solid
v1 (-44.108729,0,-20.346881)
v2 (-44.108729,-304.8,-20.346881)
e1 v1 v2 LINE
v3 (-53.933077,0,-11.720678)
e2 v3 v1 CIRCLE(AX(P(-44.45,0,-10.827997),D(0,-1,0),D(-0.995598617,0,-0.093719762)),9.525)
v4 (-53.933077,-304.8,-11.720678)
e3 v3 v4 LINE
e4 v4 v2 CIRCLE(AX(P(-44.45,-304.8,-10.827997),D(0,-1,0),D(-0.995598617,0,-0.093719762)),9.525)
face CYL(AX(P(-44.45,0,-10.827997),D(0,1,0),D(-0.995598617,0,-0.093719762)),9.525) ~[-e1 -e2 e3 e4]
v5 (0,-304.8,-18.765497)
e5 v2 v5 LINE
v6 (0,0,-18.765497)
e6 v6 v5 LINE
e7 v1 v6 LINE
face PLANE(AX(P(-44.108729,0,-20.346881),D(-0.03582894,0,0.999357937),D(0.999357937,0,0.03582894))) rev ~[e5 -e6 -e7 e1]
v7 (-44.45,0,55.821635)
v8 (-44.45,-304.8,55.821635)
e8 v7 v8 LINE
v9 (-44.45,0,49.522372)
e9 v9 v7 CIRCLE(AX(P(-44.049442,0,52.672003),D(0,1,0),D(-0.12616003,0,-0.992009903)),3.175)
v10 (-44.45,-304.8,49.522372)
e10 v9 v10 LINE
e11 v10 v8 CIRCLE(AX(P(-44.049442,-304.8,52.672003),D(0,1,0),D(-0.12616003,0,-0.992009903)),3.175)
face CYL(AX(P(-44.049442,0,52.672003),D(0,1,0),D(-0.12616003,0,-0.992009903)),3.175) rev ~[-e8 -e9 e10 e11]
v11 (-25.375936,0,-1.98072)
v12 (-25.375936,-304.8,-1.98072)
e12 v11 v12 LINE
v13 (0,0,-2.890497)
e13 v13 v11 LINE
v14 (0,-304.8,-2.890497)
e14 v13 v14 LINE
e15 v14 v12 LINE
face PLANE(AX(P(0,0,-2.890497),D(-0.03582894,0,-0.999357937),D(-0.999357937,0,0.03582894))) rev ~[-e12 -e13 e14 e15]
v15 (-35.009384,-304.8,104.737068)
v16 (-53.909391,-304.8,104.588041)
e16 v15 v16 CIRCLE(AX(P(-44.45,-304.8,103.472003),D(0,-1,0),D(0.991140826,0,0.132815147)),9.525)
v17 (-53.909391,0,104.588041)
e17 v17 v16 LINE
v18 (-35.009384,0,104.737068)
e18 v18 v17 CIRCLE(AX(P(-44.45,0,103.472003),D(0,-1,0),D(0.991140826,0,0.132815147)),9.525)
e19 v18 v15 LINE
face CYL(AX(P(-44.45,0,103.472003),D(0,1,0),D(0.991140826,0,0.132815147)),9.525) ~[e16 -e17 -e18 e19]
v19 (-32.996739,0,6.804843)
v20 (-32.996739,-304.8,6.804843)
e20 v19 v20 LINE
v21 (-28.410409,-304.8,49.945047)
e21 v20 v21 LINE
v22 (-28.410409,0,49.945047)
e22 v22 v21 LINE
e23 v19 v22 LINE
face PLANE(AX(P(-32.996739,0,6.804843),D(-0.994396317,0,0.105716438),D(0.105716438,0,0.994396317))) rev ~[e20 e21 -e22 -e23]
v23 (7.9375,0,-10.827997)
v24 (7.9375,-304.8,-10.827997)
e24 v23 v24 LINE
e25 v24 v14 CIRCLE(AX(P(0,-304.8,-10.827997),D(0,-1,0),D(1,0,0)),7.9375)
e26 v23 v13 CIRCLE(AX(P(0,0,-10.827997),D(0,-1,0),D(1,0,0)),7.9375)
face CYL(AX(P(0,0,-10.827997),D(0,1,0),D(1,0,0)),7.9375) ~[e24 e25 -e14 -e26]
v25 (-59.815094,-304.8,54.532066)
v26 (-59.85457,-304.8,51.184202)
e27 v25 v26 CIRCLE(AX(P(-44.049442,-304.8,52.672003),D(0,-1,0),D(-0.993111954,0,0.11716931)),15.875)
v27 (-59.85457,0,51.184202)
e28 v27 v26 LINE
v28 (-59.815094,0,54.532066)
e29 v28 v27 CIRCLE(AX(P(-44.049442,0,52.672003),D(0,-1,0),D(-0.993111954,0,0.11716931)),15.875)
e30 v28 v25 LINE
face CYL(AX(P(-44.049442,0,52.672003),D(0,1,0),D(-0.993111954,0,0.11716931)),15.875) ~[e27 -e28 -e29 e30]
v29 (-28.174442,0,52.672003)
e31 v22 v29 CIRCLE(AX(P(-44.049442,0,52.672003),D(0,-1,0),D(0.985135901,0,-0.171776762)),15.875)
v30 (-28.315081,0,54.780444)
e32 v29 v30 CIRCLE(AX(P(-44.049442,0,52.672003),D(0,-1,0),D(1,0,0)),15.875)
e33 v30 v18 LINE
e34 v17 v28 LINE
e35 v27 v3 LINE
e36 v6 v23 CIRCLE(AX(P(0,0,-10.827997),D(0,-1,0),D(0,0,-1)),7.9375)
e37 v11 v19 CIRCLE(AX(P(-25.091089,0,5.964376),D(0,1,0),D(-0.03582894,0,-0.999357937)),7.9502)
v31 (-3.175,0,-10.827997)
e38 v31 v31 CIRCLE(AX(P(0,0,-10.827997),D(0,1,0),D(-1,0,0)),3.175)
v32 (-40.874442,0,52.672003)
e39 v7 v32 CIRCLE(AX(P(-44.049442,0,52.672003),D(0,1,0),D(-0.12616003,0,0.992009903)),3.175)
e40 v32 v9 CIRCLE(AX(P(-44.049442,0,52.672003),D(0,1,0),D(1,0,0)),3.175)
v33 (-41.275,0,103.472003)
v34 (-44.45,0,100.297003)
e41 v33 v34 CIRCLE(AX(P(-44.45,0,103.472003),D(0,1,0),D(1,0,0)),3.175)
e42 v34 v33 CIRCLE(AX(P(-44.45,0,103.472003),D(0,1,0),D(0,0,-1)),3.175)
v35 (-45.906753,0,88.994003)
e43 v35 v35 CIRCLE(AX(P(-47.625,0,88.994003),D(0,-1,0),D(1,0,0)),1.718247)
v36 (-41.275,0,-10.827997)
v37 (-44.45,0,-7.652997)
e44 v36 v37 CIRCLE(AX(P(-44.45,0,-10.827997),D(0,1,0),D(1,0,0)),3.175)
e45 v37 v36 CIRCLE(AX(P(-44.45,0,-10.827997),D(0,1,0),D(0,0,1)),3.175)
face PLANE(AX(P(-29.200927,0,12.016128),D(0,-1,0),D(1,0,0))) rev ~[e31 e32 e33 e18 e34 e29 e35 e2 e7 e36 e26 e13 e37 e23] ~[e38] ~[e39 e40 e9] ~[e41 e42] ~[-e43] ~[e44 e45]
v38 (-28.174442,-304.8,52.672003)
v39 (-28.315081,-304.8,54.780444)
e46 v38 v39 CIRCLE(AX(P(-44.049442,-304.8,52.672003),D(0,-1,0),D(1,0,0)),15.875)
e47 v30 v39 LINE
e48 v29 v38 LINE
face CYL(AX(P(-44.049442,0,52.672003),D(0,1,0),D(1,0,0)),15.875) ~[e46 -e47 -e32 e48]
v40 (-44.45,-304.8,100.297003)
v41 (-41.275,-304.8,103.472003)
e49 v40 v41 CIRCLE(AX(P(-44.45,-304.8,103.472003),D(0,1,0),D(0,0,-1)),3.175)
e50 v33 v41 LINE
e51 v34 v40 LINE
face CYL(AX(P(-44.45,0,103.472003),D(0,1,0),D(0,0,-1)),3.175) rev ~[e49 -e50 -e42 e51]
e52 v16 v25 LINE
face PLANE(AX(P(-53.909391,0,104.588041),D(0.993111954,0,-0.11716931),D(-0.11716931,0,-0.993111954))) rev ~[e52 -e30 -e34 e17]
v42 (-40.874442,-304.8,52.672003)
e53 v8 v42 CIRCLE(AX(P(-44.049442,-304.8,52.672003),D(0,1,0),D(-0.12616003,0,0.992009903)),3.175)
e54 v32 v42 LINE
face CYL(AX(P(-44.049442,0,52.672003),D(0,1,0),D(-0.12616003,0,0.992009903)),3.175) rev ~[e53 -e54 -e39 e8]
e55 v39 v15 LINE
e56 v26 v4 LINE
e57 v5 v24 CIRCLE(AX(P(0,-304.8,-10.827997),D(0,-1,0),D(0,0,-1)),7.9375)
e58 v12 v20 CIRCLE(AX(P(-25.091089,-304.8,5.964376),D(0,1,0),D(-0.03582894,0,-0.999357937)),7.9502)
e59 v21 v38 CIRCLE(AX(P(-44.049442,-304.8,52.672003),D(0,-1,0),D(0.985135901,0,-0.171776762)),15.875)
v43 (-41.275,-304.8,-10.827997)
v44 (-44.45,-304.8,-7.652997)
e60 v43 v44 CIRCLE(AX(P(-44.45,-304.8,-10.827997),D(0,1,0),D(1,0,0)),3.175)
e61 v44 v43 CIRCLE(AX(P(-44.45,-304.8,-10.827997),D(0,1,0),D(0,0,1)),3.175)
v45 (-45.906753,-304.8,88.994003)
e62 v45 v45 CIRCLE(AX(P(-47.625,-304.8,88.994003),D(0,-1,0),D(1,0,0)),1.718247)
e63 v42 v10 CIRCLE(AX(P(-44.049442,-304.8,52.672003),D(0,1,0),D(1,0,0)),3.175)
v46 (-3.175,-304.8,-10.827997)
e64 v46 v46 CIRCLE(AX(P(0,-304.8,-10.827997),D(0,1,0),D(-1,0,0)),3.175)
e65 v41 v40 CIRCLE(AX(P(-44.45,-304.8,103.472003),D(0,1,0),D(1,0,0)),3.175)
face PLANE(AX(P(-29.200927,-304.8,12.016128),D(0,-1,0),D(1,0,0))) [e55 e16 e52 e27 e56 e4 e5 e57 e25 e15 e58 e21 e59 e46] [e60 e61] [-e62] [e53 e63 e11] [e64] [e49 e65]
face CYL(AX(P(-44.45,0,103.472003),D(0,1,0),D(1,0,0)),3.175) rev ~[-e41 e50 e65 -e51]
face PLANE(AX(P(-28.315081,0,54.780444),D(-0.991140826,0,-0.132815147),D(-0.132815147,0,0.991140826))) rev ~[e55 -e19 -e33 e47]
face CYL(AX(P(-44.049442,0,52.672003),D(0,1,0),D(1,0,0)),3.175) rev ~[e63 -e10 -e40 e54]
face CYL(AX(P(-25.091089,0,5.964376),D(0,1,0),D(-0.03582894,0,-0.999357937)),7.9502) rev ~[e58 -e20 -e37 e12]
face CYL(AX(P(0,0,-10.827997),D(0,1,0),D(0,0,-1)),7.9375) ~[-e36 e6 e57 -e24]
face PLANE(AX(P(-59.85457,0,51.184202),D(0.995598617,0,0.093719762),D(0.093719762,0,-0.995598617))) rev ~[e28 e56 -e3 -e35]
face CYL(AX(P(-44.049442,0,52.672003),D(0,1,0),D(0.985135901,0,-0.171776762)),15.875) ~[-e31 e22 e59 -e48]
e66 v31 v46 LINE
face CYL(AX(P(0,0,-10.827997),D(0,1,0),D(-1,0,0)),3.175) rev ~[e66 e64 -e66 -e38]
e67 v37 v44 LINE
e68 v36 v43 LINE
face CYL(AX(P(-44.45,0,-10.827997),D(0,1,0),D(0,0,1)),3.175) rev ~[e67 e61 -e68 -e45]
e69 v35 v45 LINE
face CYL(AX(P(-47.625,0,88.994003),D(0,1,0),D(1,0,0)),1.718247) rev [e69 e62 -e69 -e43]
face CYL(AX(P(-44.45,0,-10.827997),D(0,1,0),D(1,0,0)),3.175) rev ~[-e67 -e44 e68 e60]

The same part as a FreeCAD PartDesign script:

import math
import FreeCAD as App
import Part
import Sketcher

V = App.Vector
Q = App.Units.Quantity

doc = App.newDocument("Part")
body = doc.addObject("PartDesign::Body", "Body")

# Sketch on XZ plane
sketch1 = body.newObject("Sketcher::SketchObject", "Sketch")
sketch1.AttachmentSupport = (doc.getObject("XZ_Plane"), [""])
sketch1.MapMode = "FlatFace"
sketch1.addGeometry(Part.LineSegment(V(0, -2.9, 0), V(-25.4, -2, 0)), False)
sketch1.addGeometry(Part.ArcOfCircle(Part.Circle(V(-25.1, 6, 0), V(0, 0, 1), 8), math.radians(174), math.radians(268)), False)
sketch1.addGeometry(Part.LineSegment(V(-33, 6.8, 0), V(-28.4, 49.9, 0)), False)
sketch1.addGeometry(Part.ArcOfCircle(Part.Circle(V(-44, 52.7, 0), V(0, 0, 1), 15.9), math.radians(-9.89), math.radians(0)), False)
sketch1.addGeometry(Part.ArcOfCircle(Part.Circle(V(-44, 52.7, 0), V(0, 0, 1), 15.9), math.radians(0), math.radians(7.63)), False)
sketch1.addGeometry(Part.LineSegment(V(-28.3, 54.8, 0), V(-35, 104.7, 0)), False)
sketch1.addGeometry(Part.ArcOfCircle(Part.Circle(V(-44.5, 103.5, 0), V(0, 0, 1), 9.5), math.radians(8), math.radians(173)), False)
sketch1.addGeometry(Part.LineSegment(V(-53.9, 104.6, 0), V(-59.8, 54.5, 0)), False)
sketch1.addGeometry(Part.ArcOfCircle(Part.Circle(V(-44, 52.7, 0), V(0, 0, 1), 15.9), math.radians(173.27), math.radians(185.38)), False)
sketch1.addGeometry(Part.LineSegment(V(-59.9, 51.2, 0), V(-53.9, -11.7, 0)), False)
sketch1.addGeometry(Part.ArcOfCircle(Part.Circle(V(-44.5, -10.8, 0), V(0, 0, 1), 9.5), math.radians(-175), math.radians(-88)), False)
sketch1.addGeometry(Part.LineSegment(V(-44.1, -20.3, 0), V(0, -18.8, 0)), False)
sketch1.addGeometry(Part.ArcOfCircle(Part.Circle(V(0, -10.8, 0), V(0, 0, 1), 7.9), math.radians(-90), math.radians(0)), False)
sketch1.addGeometry(Part.ArcOfCircle(Part.Circle(V(0, -10.8, 0), V(0, 0, 1), 7.9), math.radians(0), math.radians(90)), False)
sketch1.addGeometry(Part.ArcOfCircle(Part.Circle(V(-44.5, -10.8, 0), V(0, 0, 1), 3.2), math.radians(90), math.radians(360)), False)
sketch1.addGeometry(Part.ArcOfCircle(Part.Circle(V(-44.5, -10.8, 0), V(0, 0, 1), 3.2), math.radians(0), math.radians(90)), False)
sketch1.addGeometry(Part.Circle(V(0, -10.8, 0), V(0, 0, 1), 3.2), False)
sketch1.addGeometry(Part.ArcOfCircle(Part.Circle(V(-44, 52.7, 0), V(0, 0, 1), 3.2), math.radians(0), math.radians(97)), False)
sketch1.addGeometry(Part.ArcOfCircle(Part.Circle(V(-44, 52.7, 0), V(0, 0, 1), 3.2), math.radians(-97), math.radians(0)), False)
sketch1.addGeometry(Part.ArcOfCircle(Part.Circle(V(-44, 52.7, 0), V(0, 0, 1), 3.2), math.radians(97), math.radians(263)), False)
sketch1.addGeometry(Part.Circle(V(-47.6, 89, 0), V(0, 0, 1), 1.7), False)
sketch1.addGeometry(Part.ArcOfCircle(Part.Circle(V(-44.5, 103.5, 0), V(0, 0, 1), 3.2), math.radians(0), math.radians(270)), False)
sketch1.addGeometry(Part.ArcOfCircle(Part.Circle(V(-44.5, 103.5, 0), V(0, 0, 1), 3.2), math.radians(-90), math.radians(0)), False)
sketch1.addConstraint(Sketcher.Constraint("Tangent", 0, 2, 1, 2))
sketch1.addConstraint(Sketcher.Constraint("Tangent", 1, 1, 2, 1))
sketch1.addConstraint(Sketcher.Constraint("Coincident", 2, 2, 3, 1))
sketch1.addConstraint(Sketcher.Constraint("Tangent", 3, 2, 4, 1))
sketch1.addConstraint(Sketcher.Constraint("Tangent", 4, 2, 5, 1))
sketch1.addConstraint(Sketcher.Constraint("Tangent", 5, 2, 6, 1))
sketch1.addConstraint(Sketcher.Constraint("Tangent", 6, 2, 7, 1))
sketch1.addConstraint(Sketcher.Constraint("Tangent", 7, 2, 8, 1))
sketch1.addConstraint(Sketcher.Constraint("Tangent", 8, 2, 9, 1))
sketch1.addConstraint(Sketcher.Constraint("Tangent", 9, 2, 10, 1))
sketch1.addConstraint(Sketcher.Constraint("Tangent", 10, 2, 11, 1))
sketch1.addConstraint(Sketcher.Constraint("Coincident", 11, 2, 12, 1))
sketch1.addConstraint(Sketcher.Constraint("Tangent", 12, 2, 13, 1))
sketch1.addConstraint(Sketcher.Constraint("Coincident", 13, 2, 0, 1))
sketch1.addConstraint(Sketcher.Constraint("Tangent", 14, 1, 15, 2))
sketch1.addConstraint(Sketcher.Constraint("Coincident", 15, 1, 14, 2))
sketch1.addConstraint(Sketcher.Constraint("Tangent", 17, 1, 18, 2))
sketch1.addConstraint(Sketcher.Constraint("Tangent", 18, 1, 19, 2))
sketch1.addConstraint(Sketcher.Constraint("Tangent", 19, 1, 17, 2))
sketch1.addConstraint(Sketcher.Constraint("Tangent", 21, 1, 22, 2))
sketch1.addConstraint(Sketcher.Constraint("Coincident", 22, 1, 21, 2))
sketch1.addConstraint(Sketcher.Constraint("Coincident", 8, 3, 3, 3))
sketch1.addConstraint(Sketcher.Constraint("Coincident", 14, 3, 10, 3))
sketch1.addConstraint(Sketcher.Constraint("Coincident", 16, 3, 12, 3))
sketch1.addConstraint(Sketcher.Constraint("Coincident", 17, 3, 3, 3))
sketch1.addConstraint(Sketcher.Constraint("Coincident", 21, 3, 6, 3))
sketch1.addConstraint(Sketcher.Constraint("Equal", 3, 4))
sketch1.addConstraint(Sketcher.Constraint("Equal", 4, 8))
sketch1.addConstraint(Sketcher.Constraint("Equal", 6, 10))
sketch1.addConstraint(Sketcher.Constraint("Equal", 12, 13))
sketch1.addConstraint(Sketcher.Constraint("Equal", 15, 16))
sketch1.addConstraint(Sketcher.Constraint("Equal", 16, 17))
sketch1.addConstraint(Sketcher.Constraint("Equal", 19, 21))
sketch1.addConstraint(Sketcher.Constraint("PointOnObject", 12, 3, -2))
sketch1.addConstraint(Sketcher.Constraint("PointOnObject", 11, 2, -2))
sketch1.addConstraint(Sketcher.Constraint("PointOnObject", 13, 2, -2))
sketch1.addConstraint(Sketcher.Constraint("Horizontal", 10, 3, 12, 3))
sketch1.addConstraint(Sketcher.Constraint("Horizontal", 19, 3, 3, 2))
sketch1.addConstraint(Sketcher.Constraint("Horizontal", 16, 3, 12, 2))
sketch1.addConstraint(Sketcher.Constraint("Horizontal", 12, 2, 15, 1))
sketch1.addConstraint(Sketcher.Constraint("Horizontal", 3, 2, 17, 1))
sketch1.addConstraint(Sketcher.Constraint("Horizontal", 22, 3, 21, 1))
sketch1.addConstraint(Sketcher.Constraint("Vertical", 6, 3, 10, 3))
sketch1.addConstraint(Sketcher.Constraint("Vertical", 22, 3, 14, 1))
sketch1.addConstraint(Sketcher.Constraint("Vertical", 14, 1, 18, 1))
sketch1.addConstraint(Sketcher.Constraint("Vertical", 18, 1, 19, 1))
sketch1.addConstraint(Sketcher.Constraint("Vertical", 19, 1, 22, 1))
sketch1.addConstraint(Sketcher.Constraint("Diameter", 16, Q("0.25 in")))
sketch1.addConstraint(Sketcher.Constraint("Radius", 1, Q("0.313 in")))
sketch1.addConstraint(Sketcher.Constraint("Radius", 3, Q("0.625 in")))
sketch1.addConstraint(Sketcher.Constraint("Radius", 6, Q("0.375 in")))
sketch1.addConstraint(Sketcher.Constraint("Radius", 12, Q("0.3125 in")))
sketch1.addConstraint(Sketcher.Constraint("DistanceY", 3, 3, 6, 3, Q("2 in")))
sketch1.addConstraint(Sketcher.Constraint("DistanceY", 10, 3, 4, 3, Q("2.5 in")))
sketch1.addConstraint(Sketcher.Constraint("DistanceX", 6, 3, -1, 1, Q("1.75 in")))
sketch1.addConstraint(Sketcher.Constraint("DistanceY", 20, 3, 6, 3, Q("0.57 in")))
sketch1.addConstraint(Sketcher.Constraint("DistanceX", 20, 3, -1, 1, Q("1.875 in")))
sketch1.addConstraint(Sketcher.Constraint("Diameter", 20, 3.436494))
sketch1.addConstraint(Sketcher.Constraint("DistanceY", 8, 2, 4, 3, 1.487801))
sketch1.addConstraint(Sketcher.Constraint("Distance", 0, 25.39224))
sketch1.addConstraint(Sketcher.Constraint("Distance", 2, 43.383311))
sketch1.addConstraint(Sketcher.Constraint("DistanceX", 1, 3, -1, 1, 25.091089))
sketch1.addConstraint(Sketcher.Constraint("DistanceY", 0, 2, -1, 1, 1.98072))
pad1 = body.newObject("PartDesign::Pad", "Pad")
pad1.Profile = sketch1
pad1.Length = Q("12 in")

doc.recompute()
